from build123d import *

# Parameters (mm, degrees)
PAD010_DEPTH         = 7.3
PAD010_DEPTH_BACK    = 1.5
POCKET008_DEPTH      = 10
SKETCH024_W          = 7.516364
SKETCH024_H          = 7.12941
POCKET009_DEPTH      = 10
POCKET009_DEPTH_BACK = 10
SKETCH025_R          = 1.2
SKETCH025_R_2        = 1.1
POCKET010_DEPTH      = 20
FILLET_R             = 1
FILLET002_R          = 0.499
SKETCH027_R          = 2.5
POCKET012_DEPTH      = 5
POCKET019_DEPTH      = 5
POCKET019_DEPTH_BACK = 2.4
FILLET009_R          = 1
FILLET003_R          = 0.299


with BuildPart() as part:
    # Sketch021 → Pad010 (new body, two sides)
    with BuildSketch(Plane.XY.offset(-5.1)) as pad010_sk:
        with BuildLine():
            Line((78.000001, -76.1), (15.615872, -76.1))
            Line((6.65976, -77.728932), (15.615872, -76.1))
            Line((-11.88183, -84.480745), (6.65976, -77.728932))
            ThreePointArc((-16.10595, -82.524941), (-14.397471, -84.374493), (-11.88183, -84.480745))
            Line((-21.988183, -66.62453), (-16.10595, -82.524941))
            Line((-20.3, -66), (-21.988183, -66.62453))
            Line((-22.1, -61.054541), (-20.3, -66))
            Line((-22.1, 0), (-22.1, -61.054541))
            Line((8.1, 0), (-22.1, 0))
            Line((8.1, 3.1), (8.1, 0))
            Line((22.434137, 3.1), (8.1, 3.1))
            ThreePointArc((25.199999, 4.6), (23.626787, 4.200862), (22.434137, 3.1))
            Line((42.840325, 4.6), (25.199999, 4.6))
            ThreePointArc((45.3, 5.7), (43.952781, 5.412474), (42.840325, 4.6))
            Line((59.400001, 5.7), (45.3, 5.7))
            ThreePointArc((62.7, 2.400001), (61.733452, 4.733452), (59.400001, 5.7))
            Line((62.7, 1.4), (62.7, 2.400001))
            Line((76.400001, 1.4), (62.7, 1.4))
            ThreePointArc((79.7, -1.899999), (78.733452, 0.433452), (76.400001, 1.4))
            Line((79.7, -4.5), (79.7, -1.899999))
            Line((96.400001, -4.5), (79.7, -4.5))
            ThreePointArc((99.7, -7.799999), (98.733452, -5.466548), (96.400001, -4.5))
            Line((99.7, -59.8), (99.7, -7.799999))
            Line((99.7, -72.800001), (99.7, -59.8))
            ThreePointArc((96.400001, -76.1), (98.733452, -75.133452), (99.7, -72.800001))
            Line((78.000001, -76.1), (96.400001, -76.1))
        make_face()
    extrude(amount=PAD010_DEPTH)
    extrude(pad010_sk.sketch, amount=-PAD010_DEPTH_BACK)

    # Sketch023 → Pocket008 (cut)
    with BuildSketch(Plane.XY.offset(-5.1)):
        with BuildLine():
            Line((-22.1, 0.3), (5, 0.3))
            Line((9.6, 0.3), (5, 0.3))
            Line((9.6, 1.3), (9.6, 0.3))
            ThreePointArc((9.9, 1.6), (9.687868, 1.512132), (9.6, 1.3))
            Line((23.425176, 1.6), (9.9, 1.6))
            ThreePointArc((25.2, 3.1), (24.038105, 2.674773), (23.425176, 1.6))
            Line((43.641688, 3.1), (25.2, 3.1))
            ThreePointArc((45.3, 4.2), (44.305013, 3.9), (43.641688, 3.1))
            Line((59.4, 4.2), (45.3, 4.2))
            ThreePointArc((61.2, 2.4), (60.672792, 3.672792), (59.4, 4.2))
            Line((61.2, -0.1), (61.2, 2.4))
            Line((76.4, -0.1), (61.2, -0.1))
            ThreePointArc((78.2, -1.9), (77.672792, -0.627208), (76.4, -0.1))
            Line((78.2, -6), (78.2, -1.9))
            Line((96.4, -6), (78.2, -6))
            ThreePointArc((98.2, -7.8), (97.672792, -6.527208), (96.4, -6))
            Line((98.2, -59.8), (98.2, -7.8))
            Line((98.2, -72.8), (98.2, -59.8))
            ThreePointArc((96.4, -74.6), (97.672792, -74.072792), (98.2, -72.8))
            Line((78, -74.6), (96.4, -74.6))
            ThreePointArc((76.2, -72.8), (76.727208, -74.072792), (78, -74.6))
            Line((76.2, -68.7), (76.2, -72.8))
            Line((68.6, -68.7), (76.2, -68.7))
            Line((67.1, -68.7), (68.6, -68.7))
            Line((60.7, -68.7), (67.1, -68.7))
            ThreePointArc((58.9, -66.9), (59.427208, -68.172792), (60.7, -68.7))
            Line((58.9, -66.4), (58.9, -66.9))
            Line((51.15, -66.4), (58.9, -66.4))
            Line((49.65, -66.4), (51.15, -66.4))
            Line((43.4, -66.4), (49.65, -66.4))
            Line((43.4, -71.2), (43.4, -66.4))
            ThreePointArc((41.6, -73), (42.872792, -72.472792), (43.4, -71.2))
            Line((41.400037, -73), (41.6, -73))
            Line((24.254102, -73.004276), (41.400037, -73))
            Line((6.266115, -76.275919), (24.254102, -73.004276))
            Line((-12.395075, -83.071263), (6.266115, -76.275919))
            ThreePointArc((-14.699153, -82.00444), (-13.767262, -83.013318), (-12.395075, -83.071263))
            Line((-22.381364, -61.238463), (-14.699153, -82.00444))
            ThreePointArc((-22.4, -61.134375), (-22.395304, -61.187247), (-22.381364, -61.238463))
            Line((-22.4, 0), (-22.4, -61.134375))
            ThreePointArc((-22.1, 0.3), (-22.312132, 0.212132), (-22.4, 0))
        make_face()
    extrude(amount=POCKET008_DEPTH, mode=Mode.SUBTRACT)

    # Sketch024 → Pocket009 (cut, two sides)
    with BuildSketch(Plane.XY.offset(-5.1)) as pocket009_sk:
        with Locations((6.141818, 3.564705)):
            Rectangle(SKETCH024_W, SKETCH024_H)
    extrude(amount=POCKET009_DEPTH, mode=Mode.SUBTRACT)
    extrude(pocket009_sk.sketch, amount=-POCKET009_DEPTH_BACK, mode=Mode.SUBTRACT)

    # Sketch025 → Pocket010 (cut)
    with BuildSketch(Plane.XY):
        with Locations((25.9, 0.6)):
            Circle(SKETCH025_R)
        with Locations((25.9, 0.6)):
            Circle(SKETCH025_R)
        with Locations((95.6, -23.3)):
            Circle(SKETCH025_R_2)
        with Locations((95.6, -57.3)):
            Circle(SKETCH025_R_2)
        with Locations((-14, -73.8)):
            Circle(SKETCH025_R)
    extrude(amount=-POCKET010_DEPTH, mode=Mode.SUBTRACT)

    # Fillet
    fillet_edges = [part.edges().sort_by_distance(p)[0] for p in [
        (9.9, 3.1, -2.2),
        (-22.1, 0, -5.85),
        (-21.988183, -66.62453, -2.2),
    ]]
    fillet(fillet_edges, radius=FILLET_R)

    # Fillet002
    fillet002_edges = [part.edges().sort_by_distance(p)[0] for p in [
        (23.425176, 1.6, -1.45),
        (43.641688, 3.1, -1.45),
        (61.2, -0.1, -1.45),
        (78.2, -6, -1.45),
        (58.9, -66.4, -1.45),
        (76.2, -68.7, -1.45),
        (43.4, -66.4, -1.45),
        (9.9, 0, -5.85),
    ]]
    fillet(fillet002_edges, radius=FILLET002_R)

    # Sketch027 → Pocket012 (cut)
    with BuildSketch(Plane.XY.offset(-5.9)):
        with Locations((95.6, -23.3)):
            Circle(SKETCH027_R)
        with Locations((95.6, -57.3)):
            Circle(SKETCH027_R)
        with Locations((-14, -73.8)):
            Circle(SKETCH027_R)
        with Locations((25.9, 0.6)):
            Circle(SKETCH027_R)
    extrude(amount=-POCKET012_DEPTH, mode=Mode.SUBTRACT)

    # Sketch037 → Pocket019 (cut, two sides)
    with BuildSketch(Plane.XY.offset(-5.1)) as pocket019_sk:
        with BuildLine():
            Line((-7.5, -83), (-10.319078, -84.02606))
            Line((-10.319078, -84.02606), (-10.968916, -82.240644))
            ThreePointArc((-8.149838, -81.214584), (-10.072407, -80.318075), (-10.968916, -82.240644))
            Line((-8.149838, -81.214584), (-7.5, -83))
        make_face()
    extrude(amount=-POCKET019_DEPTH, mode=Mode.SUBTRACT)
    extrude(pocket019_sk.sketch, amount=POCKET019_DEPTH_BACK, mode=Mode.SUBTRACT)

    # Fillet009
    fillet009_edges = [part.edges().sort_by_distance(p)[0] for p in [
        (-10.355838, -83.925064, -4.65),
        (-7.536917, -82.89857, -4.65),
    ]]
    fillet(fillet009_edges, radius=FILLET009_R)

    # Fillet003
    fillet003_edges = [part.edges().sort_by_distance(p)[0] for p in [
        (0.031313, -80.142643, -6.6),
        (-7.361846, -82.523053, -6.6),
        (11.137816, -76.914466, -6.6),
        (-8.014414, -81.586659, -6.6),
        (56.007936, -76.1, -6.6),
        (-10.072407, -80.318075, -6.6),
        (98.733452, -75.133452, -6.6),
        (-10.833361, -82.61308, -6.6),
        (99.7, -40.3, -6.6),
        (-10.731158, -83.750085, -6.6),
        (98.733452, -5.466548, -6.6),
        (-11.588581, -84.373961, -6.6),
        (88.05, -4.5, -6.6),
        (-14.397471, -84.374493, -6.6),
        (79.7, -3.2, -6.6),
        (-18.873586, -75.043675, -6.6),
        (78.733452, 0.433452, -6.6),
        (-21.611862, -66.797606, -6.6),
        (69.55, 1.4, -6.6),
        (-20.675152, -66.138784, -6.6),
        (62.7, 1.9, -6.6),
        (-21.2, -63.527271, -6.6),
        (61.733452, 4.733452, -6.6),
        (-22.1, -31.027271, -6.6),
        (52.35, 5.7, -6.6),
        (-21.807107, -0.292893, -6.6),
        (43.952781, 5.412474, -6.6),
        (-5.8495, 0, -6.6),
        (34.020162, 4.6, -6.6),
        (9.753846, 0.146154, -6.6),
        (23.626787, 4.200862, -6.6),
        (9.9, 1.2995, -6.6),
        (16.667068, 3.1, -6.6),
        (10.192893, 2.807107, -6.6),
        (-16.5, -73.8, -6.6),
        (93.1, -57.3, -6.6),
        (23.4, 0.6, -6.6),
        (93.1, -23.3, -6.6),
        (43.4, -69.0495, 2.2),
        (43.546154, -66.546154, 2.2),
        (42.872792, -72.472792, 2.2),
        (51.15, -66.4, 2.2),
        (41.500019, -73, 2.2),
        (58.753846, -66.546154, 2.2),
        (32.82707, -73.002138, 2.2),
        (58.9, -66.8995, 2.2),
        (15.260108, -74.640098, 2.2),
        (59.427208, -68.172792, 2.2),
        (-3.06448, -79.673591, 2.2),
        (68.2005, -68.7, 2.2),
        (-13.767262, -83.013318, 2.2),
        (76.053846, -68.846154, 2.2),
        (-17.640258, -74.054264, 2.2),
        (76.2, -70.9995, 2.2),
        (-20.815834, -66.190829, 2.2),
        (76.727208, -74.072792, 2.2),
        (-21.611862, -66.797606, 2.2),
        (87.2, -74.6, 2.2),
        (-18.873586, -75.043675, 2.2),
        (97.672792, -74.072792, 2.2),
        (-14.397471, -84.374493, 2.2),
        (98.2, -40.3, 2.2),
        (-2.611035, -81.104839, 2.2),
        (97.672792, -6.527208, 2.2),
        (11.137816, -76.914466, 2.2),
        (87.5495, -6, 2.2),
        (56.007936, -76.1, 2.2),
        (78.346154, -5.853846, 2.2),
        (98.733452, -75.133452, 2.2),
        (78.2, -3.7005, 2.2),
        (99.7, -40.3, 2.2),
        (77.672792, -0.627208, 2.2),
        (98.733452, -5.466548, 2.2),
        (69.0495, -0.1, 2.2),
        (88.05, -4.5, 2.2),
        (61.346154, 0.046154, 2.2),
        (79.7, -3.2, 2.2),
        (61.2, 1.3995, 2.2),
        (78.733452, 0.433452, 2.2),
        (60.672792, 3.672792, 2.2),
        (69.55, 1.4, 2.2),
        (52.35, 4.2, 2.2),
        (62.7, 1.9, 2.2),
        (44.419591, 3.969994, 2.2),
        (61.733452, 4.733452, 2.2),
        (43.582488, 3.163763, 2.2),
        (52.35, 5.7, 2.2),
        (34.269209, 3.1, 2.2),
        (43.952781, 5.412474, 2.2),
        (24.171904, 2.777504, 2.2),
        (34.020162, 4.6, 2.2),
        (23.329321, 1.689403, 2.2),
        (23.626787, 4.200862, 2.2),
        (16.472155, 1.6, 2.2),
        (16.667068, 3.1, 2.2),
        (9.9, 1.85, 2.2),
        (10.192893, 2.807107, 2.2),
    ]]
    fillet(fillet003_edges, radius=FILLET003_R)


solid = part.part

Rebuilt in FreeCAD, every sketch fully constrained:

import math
import FreeCAD as App
import Part
import Sketcher
from FreeCAD import Vector
Q = App.Units.Quantity


def edges_at(feature, points):
    """Names of the edges that pass closest to the given points."""
    edges = feature.Shape.Edges
    near = lambda p: min(range(len(edges)), key=lambda i: edges[i].distToShape(Part.Vertex(*p))[0])
    return sorted({f"Edge{near(p) + 1}" for p in points})

doc = App.newDocument("Part")
body = doc.addObject("PartDesign::Body", "Body")

# Sketch on XY plane
sketch1 = body.newObject("Sketcher::SketchObject", "Sketch")
sketch1.AttachmentSupport = (doc.getObject("XY_Plane"), [""])
sketch1.MapMode = "FlatFace"
sketch1.AttachmentOffset = App.Placement(Vector(0, 0, -5.1), App.Rotation())
sketch1.addGeometry(Part.LineSegment(Vector(15.6, -76.1, 0), Vector(96.4, -76.1, 0)), False)
sketch1.addGeometry(Part.ArcOfCircle(Part.Circle(Vector(96.4, -72.8, 0), Vector(0, 0, 1), 3.3), math.radians(-90), math.radians(0)), False)
sketch1.addGeometry(Part.LineSegment(Vector(99.7, -72.8, 0), Vector(99.7, -7.8, 0)), False)
sketch1.addGeometry(Part.ArcOfCircle(Part.Circle(Vector(96.4, -7.8, 0), Vector(0, 0, 1), 3.3), math.radians(0), math.radians(90)), False)
sketch1.addGeometry(Part.LineSegment(Vector(96.4, -4.5, 0), Vector(79.7, -4.5, 0)), False)
sketch1.addGeometry(Part.LineSegment(Vector(79.7, -4.5, 0), Vector(79.7, -1.9, 0)), False)
sketch1.addGeometry(Part.ArcOfCircle(Part.Circle(Vector(76.4, -1.9, 0), Vector(0, 0, 1), 3.3), math.radians(0), math.radians(90)), False)
sketch1.addGeometry(Part.LineSegment(Vector(76.4, 1.4, 0), Vector(62.7, 1.4, 0)), False)
sketch1.addGeometry(Part.LineSegment(Vector(62.7, 1.4, 0), Vector(62.7, 2.4, 0)), False)
sketch1.addGeometry(Part.ArcOfCircle(Part.Circle(Vector(59.4, 2.4, 0), Vector(0, 0, 1), 3.3), math.radians(0), math.radians(90)), False)
sketch1.addGeometry(Part.LineSegment(Vector(59.4, 5.7, 0), Vector(45.3, 5.7, 0)), False)
sketch1.addGeometry(Part.ArcOfCircle(Part.Circle(Vector(45.3, 2.4, 0), Vector(0, 0, 1), 3.3), math.radians(90), math.radians(138)), False)
sketch1.addGeometry(Part.LineSegment(Vector(42.8, 4.6, 0), Vector(25.2, 4.6, 0)), False)
sketch1.addGeometry(Part.ArcOfCircle(Part.Circle(Vector(25.2, 1.3, 0), Vector(0, 0, 1), 3.3), math.radians(90), math.radians(147)), False)
sketch1.addGeometry(Part.LineSegment(Vector(22.4, 3.1, 0), Vector(8.1, 3.1, 0)), False)
sketch1.addGeometry(Part.LineSegment(Vector(8.1, 3.1, 0), Vector(8.1, 0, 0)), False)
sketch1.addGeometry(Part.LineSegment(Vector(8.1, 0, 0), Vector(-22.1, 0, 0)), False)
sketch1.addGeometry(Part.LineSegment(Vector(-22.1, 0, 0), Vector(-22.1, -61.1, 0)), False)
sketch1.addGeometry(Part.LineSegment(Vector(-22.1, -61.1, 0), Vector(-20.3, -66, 0)), False)
sketch1.addGeometry(Part.LineSegment(Vector(-20.3, -66, 0), Vector(-22, -66.6, 0)), False)
sketch1.addGeometry(Part.LineSegment(Vector(-22, -66.6, 0), Vector(-16.1, -82.5, 0)), False)
sketch1.addGeometry(Part.ArcOfCircle(Part.Circle(Vector(-13, -81.4, 0), Vector(0, 0, 1), 3.3), math.radians(-160), math.radians(-70)), False)
sketch1.addGeometry(Part.LineSegment(Vector(-11.9, -84.5, 0), Vector(6.7, -77.7, 0)), False)
sketch1.addGeometry(Part.LineSegment(Vector(6.7, -77.7, 0), Vector(15.6, -76.1, 0)), False)
sketch1.addConstraint(Sketcher.Constraint("Tangent", 0, 2, 1, 1))
sketch1.addConstraint(Sketcher.Constraint("Tangent", 1, 2, 2, 1))
sketch1.addConstraint(Sketcher.Constraint("Tangent", 2, 2, 3, 1))
sketch1.addConstraint(Sketcher.Constraint("Tangent", 3, 2, 4, 1))
sketch1.addConstraint(Sketcher.Constraint("Coincident", 4, 2, 5, 1))
sketch1.addConstraint(Sketcher.Constraint("Tangent", 5, 2, 6, 1))
sketch1.addConstraint(Sketcher.Constraint("Tangent", 6, 2, 7, 1))
sketch1.addConstraint(Sketcher.Constraint("Coincident", 7, 2, 8, 1))
sketch1.addConstraint(Sketcher.Constraint("Tangent", 8, 2, 9, 1))
sketch1.addConstraint(Sketcher.Constraint("Tangent", 9, 2, 10, 1))
sketch1.addConstraint(Sketcher.Constraint("Tangent", 10, 2, 11, 1))
sketch1.addConstraint(Sketcher.Constraint("Coincident", 11, 2, 12, 1))
sketch1.addConstraint(Sketcher.Constraint("Tangent", 12, 2, 13, 1))
sketch1.addConstraint(Sketcher.Constraint("Coincident", 13, 2, 14, 1))
sketch1.addConstraint(Sketcher.Constraint("Coincident", 14, 2, 15, 1))
sketch1.addConstraint(Sketcher.Constraint("Coincident", 15, 2, 16, 1))
sketch1.addConstraint(Sketcher.Constraint("Coincident", 16, 2, 17, 1))
sketch1.addConstraint(Sketcher.Constraint("Coincident", 17, 2, 18, 1))
sketch1.addConstraint(Sketcher.Constraint("Coincident", 18, 2, 19, 1))
sketch1.addConstraint(Sketcher.Constraint("Coincident", 19, 2, 20, 1))
sketch1.addConstraint(Sketcher.Constraint("Coincident", 20, 2, 21, 1))
sketch1.addConstraint(Sketcher.Constraint("Coincident", 21, 2, 22, 1))
sketch1.addConstraint(Sketcher.Constraint("Coincident", 22, 2, 23, 1))
sketch1.addConstraint(Sketcher.Constraint("Coincident", 23, 2, 0, 1))
sketch1.addConstraint(Sketcher.Constraint("Horizontal", 0))
sketch1.addConstraint(Sketcher.Constraint("Vertical", 2))
sketch1.addConstraint(Sketcher.Constraint("Horizontal", 4))
sketch1.addConstraint(Sketcher.Constraint("Vertical", 5))
sketch1.addConstraint(Sketcher.Constraint("Horizontal", 7))
sketch1.addConstraint(Sketcher.Constraint("Vertical", 8))
sketch1.addConstraint(Sketcher.Constraint("Horizontal", 10))
sketch1.addConstraint(Sketcher.Constraint("Horizontal", 12))
sketch1.addConstraint(Sketcher.Constraint("Horizontal", 14))
sketch1.addConstraint(Sketcher.Constraint("Vertical", 15))
sketch1.addConstraint(Sketcher.Constraint("Horizontal", 16))
sketch1.addConstraint(Sketcher.Constraint("Vertical", 17))
sketch1.addConstraint(Sketcher.Constraint("Equal", 1, 3))
sketch1.addConstraint(Sketcher.Constraint("Equal", 3, 6))
sketch1.addConstraint(Sketcher.Constraint("Equal", 6, 9))
sketch1.addConstraint(Sketcher.Constraint("Equal", 9, 11))
sketch1.addConstraint(Sketcher.Constraint("Equal", 9, 13))
sketch1.addConstraint(Sketcher.Constraint("PointOnObject", 15, 2, -1))
sketch1.addConstraint(Sketcher.Constraint("Perpendicular", 19, 20))
sketch1.addConstraint(Sketcher.Constraint("Radius", 1, Q("3.300001 mm")))
sketch1.addConstraint(Sketcher.Constraint("DistanceY", 2, 1, 2, 2, Q("65.000002 mm")))
sketch1.addConstraint(Sketcher.Constraint("DistanceY", 8, 1, 8, 2, Q("1.000001 mm")))
sketch1.addConstraint(Sketcher.Constraint("Angle", 18, Q("-69.999999 deg")))
sketch1.addConstraint(Sketcher.Constraint("DistanceX", 4, 2, 4, 1, Q("16.700001 mm")))
sketch1.addConstraint(Sketcher.Constraint("DistanceX", 7, 2, 7, 1, Q("13.700001 mm")))
sketch1.addConstraint(Sketcher.Constraint("DistanceX", 10, 2, 10, 1, Q("14.100001 mm")))
sketch1.addConstraint(Sketcher.Constraint("DistanceX", 16, 2, 16, 1, Q("30.2 mm")))
sketch1.addConstraint(Sketcher.Constraint("DistanceY", 5, 1, 5, 2, Q("2.600001 mm")))
sketch1.addConstraint(Sketcher.Constraint("DistanceY", 15, 2, 15, 1, Q("3.1 mm")))
sketch1.addConstraint(Sketcher.Constraint("DistanceY", 18, 2, -1, 1, Q("66 mm")))
sketch1.addConstraint(Sketcher.Constraint("Distance", 19, Q("1.8 mm")))
sketch1.addConstraint(Sketcher.Constraint("DistanceX", -1, 1, 1, 3, Q("96.399999 mm")))
sketch1.addConstraint(Sketcher.Constraint("DistanceY", 1, 3, -1, 1, Q("72.799999 mm")))
sketch1.addConstraint(Sketcher.Constraint("DistanceX", -1, 1, 13, 3, Q("25.2 mm")))
sketch1.addConstraint(Sketcher.Constraint("DistanceY", -1, 1, 13, 3, Q("1.300001 mm")))
sketch1.addConstraint(Sketcher.Constraint("DistanceX", -1, 1, 14, 2, Q("8.1 mm")))
sketch1.addConstraint(Sketcher.Constraint("DistanceX", 18, 2, -1, 1, Q("20.3 mm")))
sketch1.addConstraint(Sketcher.Constraint("Radius", 21, Q("3.300067 mm")))
sketch1.addConstraint(Sketcher.Constraint("DistanceX", 0, 1, 0, 2, Q("80.784129 mm")))
sketch1.addConstraint(Sketcher.Constraint("DistanceY", 20, 2, 17, 2, Q("21.4704 mm")))
sketch1.addConstraint(Sketcher.Constraint("DistanceY", 21, 2, 21, 3, Q("3.100901 mm")))
sketch1.addConstraint(Sketcher.Constraint("Distance", 22, Q("19.732652 mm")))
sketch1.addConstraint(Sketcher.Constraint("Distance", 23, Q("9.103041 mm")))
sketch1.addConstraint(Sketcher.Constraint("DistanceY", 19, 2, -1, 1, Q("66.62453 mm")))
sketch1.addConstraint(Sketcher.Constraint("DistanceX", 21, 2, -1, 1, Q("11.88183 mm")))
pad1 = body.newObject("PartDesign::Pad", "Pad")
pad1.Profile = sketch1
pad1.Type = "TwoLengths"
pad1.Length = 7.3
pad1.Length2 = 1.5

# Sketch on XY plane
sketch2 = body.newObject("Sketcher::SketchObject", "Sketch001")
sketch2.AttachmentSupport = (doc.getObject("XY_Plane"), [""])
sketch2.MapMode = "FlatFace"
sketch2.AttachmentOffset = App.Placement(Vector(0, 0, -5.1), App.Rotation())
sketch2.addGeometry(Part.LineSegment(Vector(9.6, 0.3, 0), Vector(-22.1, 0.3, 0)), False)
sketch2.addGeometry(Part.ArcOfCircle(Part.Circle(Vector(-22.1, 0, 0), Vector(0, 0, 1), 0.3), math.radians(90.000022), math.radians(179.999978)), False)
sketch2.addGeometry(Part.LineSegment(Vector(-22.4, 0, 0), Vector(-22.4, -61.134375, 0)), False)
sketch2.addGeometry(Part.ArcOfCircle(Part.Circle(Vector(-22.099989, -61.134373, 0), Vector(0, 0, 1), 0.300011), math.radians(-179.999633), math.radians(-159.698902)), False)
sketch2.addGeometry(Part.LineSegment(Vector(-22.381364, -61.238463, 0), Vector(-14.699153, -82.00444, 0)), False)
sketch2.addGeometry(Part.ArcOfCircle(Part.Circle(Vector(-13.010969, -81.379909, 0), Vector(0, 0, 1), 1.800001), math.radians(-159.698424), math.radians(-69.991278)), False)
sketch2.addGeometry(Part.LineSegment(Vector(-12.395075, -83.071263, 0), Vector(6.266115, -76.275919, 0)), False)
sketch2.addGeometry(Part.LineSegment(Vector(6.266115, -76.275919, 0), Vector(24.254102, -73.004276, 0)), False)
sketch2.addGeometry(Part.LineSegment(Vector(24.254102, -73.004276, 0), Vector(41.400037, -73, 0)), False)
sketch2.addGeometry(Part.LineSegment(Vector(41.400037, -73, 0), Vector(41.6, -73, 0)), False)
sketch2.addGeometry(Part.ArcOfCircle(Part.Circle(Vector(41.599999, -71.199999, 0), Vector(0, 0, 1), 1.800001), math.radians(-89.999978), math.radians(-0.000022)), False)
sketch2.addGeometry(Part.LineSegment(Vector(43.4, -71.2, 0), Vector(43.4, -66.4, 0)), False)
sketch2.addGeometry(Part.LineSegment(Vector(43.4, -66.4, 0), Vector(58.9, -66.4, 0)), False)
sketch2.addGeometry(Part.LineSegment(Vector(58.9, -66.4, 0), Vector(58.9, -66.9, 0)), False)
sketch2.addGeometry(Part.ArcOfCircle(Part.Circle(Vector(60.700001, -66.899999, 0), Vector(0, 0, 1), 1.800001), math.radians(-179.999978), math.radians(-90.000022)), False)
sketch2.addGeometry(Part.LineSegment(Vector(60.7, -68.7, 0), Vector(76.2, -68.7, 0)), False)
sketch2.addGeometry(Part.LineSegment(Vector(76.2, -68.7, 0), Vector(76.2, -72.8, 0)), False)
sketch2.addGeometry(Part.ArcOfCircle(Part.Circle(Vector(78.000001, -72.799999, 0), Vector(0, 0, 1), 1.800001), math.radians(-179.999978), math.radians(-90.000022)), False)
sketch2.addGeometry(Part.LineSegment(Vector(78, -74.6, 0), Vector(96.4, -74.6, 0)), False)
sketch2.addGeometry(Part.ArcOfCircle(Part.Circle(Vector(96.399999, -72.799999, 0), Vector(0, 0, 1), 1.800001), math.radians(-89.999978), math.radians(-0.000022)), False)
sketch2.addGeometry(Part.LineSegment(Vector(98.2, -72.8, 0), Vector(98.2, -7.8, 0)), False)
sketch2.addGeometry(Part.ArcOfCircle(Part.Circle(Vector(96.399999, -7.800001, 0), Vector(0, 0, 1), 1.800001), math.radians(0.000022), math.radians(89.999978)), False)
sketch2.addGeometry(Part.LineSegment(Vector(96.4, -6, 0), Vector(78.2, -6, 0)), False)
sketch2.addGeometry(Part.LineSegment(Vector(78.2, -6, 0), Vector(78.2, -1.9, 0)), False)
sketch2.addGeometry(Part.ArcOfCircle(Part.Circle(Vector(76.399999, -1.900001, 0), Vector(0, 0, 1), 1.800001), math.radians(0.000022), math.radians(89.999978)), False)
sketch2.addGeometry(Part.LineSegment(Vector(76.4, -0.1, 0), Vector(61.2, -0.1, 0)), False)
sketch2.addGeometry(Part.LineSegment(Vector(61.2, -0.1, 0), Vector(61.2, 2.4, 0)), False)
sketch2.addGeometry(Part.ArcOfCircle(Part.Circle(Vector(59.399999, 2.399999, 0), Vector(0, 0, 1), 1.800001), math.radians(0.000022), math.radians(89.999978)), False)
sketch2.addGeometry(Part.LineSegment(Vector(59.4, 4.2, 0), Vector(45.3, 4.2, 0)), False)
sketch2.addGeometry(Part.ArcOfCircle(Part.Circle(Vector(45.3, 2.4, 0), Vector(0, 0, 1), 1.8), math.radians(90.000015), math.radians(157.114617)), False)
sketch2.addGeometry(Part.LineSegment(Vector(43.641688, 3.1, 0), Vector(25.2, 3.1, 0)), False)
sketch2.addGeometry(Part.ArcOfCircle(Part.Circle(Vector(25.199999, 1.300001, 0), Vector(0, 0, 1), 1.799999), math.radians(89.999982), math.radians(170.405947)), False)
sketch2.addGeometry(Part.LineSegment(Vector(23.425176, 1.6, 0), Vector(9.9, 1.6, 0)), False)
sketch2.addGeometry(Part.ArcOfCircle(Part.Circle(Vector(9.9, 1.3, 0), Vector(0, 0, 1), 0.3), math.radians(90.000022), math.radians(179.999978)), False)
sketch2.addGeometry(Part.LineSegment(Vector(9.6, 1.3, 0), Vector(9.6, 0.3, 0)), False)
sketch2.addConstraint(Sketcher.Constraint("Coincident", 0, 2, 1, 1))
sketch2.addConstraint(Sketcher.Constraint("Coincident", 1, 2, 2, 1))
sketch2.addConstraint(Sketcher.Constraint("Coincident", 2, 2, 3, 1))
sketch2.addConstraint(Sketcher.Constraint("Coincident", 3, 2, 4, 1))
sketch2.addConstraint(Sketcher.Constraint("Coincident", 4, 2, 5, 1))
sketch2.addConstraint(Sketcher.Constraint("Coincident", 5, 2, 6, 1))
sketch2.addConstraint(Sketcher.Constraint("Coincident", 6, 2, 7, 1))
sketch2.addConstraint(Sketcher.Constraint("Coincident", 7, 2, 8, 1))
sketch2.addConstraint(Sketcher.Constraint("Coincident", 8, 2, 9, 1))
sketch2.addConstraint(Sketcher.Constraint("Coincident", 9, 2, 10, 1))
sketch2.addConstraint(Sketcher.Constraint("Coincident", 10, 2, 11, 1))
sketch2.addConstraint(Sketcher.Constraint("Coincident", 11, 2, 12, 1))
sketch2.addConstraint(Sketcher.Constraint("Coincident", 12, 2, 13, 1))
sketch2.addConstraint(Sketcher.Constraint("Coincident", 13, 2, 14, 1))
sketch2.addConstraint(Sketcher.Constraint("Coincident", 14, 2, 15, 1))
sketch2.addConstraint(Sketcher.Constraint("Coincident", 15, 2, 16, 1))
sketch2.addConstraint(Sketcher.Constraint("Coincident", 16, 2, 17, 1))
sketch2.addConstraint(Sketcher.Constraint("Coincident", 17, 2, 18, 1))
sketch2.addConstraint(Sketcher.Constraint("Coincident", 18, 2, 19, 1))
sketch2.addConstraint(Sketcher.Constraint("Coincident", 19, 2, 20, 1))
sketch2.addConstraint(Sketcher.Constraint("Coincident", 20, 2, 21, 1))
sketch2.addConstraint(Sketcher.Constraint("Coincident", 21, 2, 22, 1))
sketch2.addConstraint(Sketcher.Constraint("Coincident", 22, 2, 23, 1))
sketch2.addConstraint(Sketcher.Constraint("Coincident", 23, 2, 24, 1))
sketch2.addConstraint(Sketcher.Constraint("Coincident", 24, 2, 25, 1))
sketch2.addConstraint(Sketcher.Constraint("Coincident", 25, 2, 26, 1))
sketch2.addConstraint(Sketcher.Constraint("Coincident", 26, 2, 27, 1))
sketch2.addConstraint(Sketcher.Constraint("Coincident", 27, 2, 28, 1))
sketch2.addConstraint(Sketcher.Constraint("Coincident", 28, 2, 29, 1))
sketch2.addConstraint(Sketcher.Constraint("Coincident", 29, 2, 30, 1))
sketch2.addConstraint(Sketcher.Constraint("Coincident", 30, 2, 31, 1))
sketch2.addConstraint(Sketcher.Constraint("Coincident", 31, 2, 32, 1))
sketch2.addConstraint(Sketcher.Constraint("Coincident", 32, 2, 33, 1))
sketch2.addConstraint(Sketcher.Constraint("Coincident", 33, 2, 34, 1))
sketch2.addConstraint(Sketcher.Constraint("Coincident", 34, 2, 0, 1))
sketch2.addConstraint(Sketcher.Constraint("Horizontal", 0))
sketch2.addConstraint(Sketcher.Constraint("Vertical", 2))
sketch2.addConstraint(Sketcher.Constraint("Horizontal", 9))
sketch2.addConstraint(Sketcher.Constraint("Vertical", 11))
sketch2.addConstraint(Sketcher.Constraint("Horizontal", 12))
sketch2.addConstraint(Sketcher.Constraint("Vertical", 13))
sketch2.addConstraint(Sketcher.Constraint("Horizontal", 15))
sketch2.addConstraint(Sketcher.Constraint("Vertical", 16))
sketch2.addConstraint(Sketcher.Constraint("Horizontal", 18))
sketch2.addConstraint(Sketcher.Constraint("Vertical", 20))
sketch2.addConstraint(Sketcher.Constraint("Horizontal", 22))
sketch2.addConstraint(Sketcher.Constraint("Vertical", 23))
sketch2.addConstraint(Sketcher.Constraint("Horizontal", 25))
sketch2.addConstraint(Sketcher.Constraint("Vertical", 26))
sketch2.addConstraint(Sketcher.Constraint("Horizontal", 28))
sketch2.addConstraint(Sketcher.Constraint("Horizontal", 30))
sketch2.addConstraint(Sketcher.Constraint("Horizontal", 32))
sketch2.addConstraint(Sketcher.Constraint("Vertical", 34))
sketch2.addConstraint(Sketcher.Constraint("PointOnObject", 1, 3, -1))
sketch2.addConstraint(Sketcher.Constraint("PointOnObject", 1, 2, -1))
sketch2.addConstraint(Sketcher.Constraint("Radius", 1, Q("0.3 mm")))
sketch2.addConstraint(Sketcher.Constraint("Radius", 5, Q("1.800001 mm")))
sketch2.addConstraint(Sketcher.Constraint("Radius", 10, Q("1.800001 mm")))
sketch2.addConstraint(Sketcher.Constraint("Radius", 14, Q("1.800001 mm")))
sketch2.addConstraint(Sketcher.Constraint("Radius", 17, Q("1.800001 mm")))
sketch2.addConstraint(Sketcher.Constraint("Radius", 19, Q("1.800001 mm")))
sketch2.addConstraint(Sketcher.Constraint("Radius", 21, Q("1.800001 mm")))
sketch2.addConstraint(Sketcher.Constraint("Radius", 24, Q("1.800001 mm")))
sketch2.addConstraint(Sketcher.Constraint("Radius", 27, Q("1.800001 mm")))
sketch2.addConstraint(Sketcher.Constraint("Radius", 29, Q("1.8 mm")))
sketch2.addConstraint(Sketcher.Constraint("Radius", 31, Q("1.799999 mm")))
sketch2.addConstraint(Sketcher.Constraint("Radius", 33, Q("0.3 mm")))
sketch2.addConstraint(Sketcher.Constraint("DistanceY", 20, 1, 20, 2, Q("65 mm")))
sketch2.addConstraint(Sketcher.Constraint("DistanceY", 34, 2, 34, 1, Q("1 mm")))
sketch2.addConstraint(Sketcher.Constraint("DistanceX", 0, 2, 0, 1, Q("31.7 mm")))
sketch2.addConstraint(Sketcher.Constraint("DistanceX", 12, 1, 12, 2, Q("15.5 mm")))
sketch2.addConstraint(Sketcher.Constraint("DistanceX", 15, 1, 15, 2, Q("15.5 mm")))
sketch2.addConstraint(Sketcher.Constraint("DistanceX", 18, 1, 18, 2, Q("18.4 mm")))
sketch2.addConstraint(Sketcher.Constraint("DistanceX", 22, 2, 22, 1, Q("18.2 mm")))
sketch2.addConstraint(Sketcher.Constraint("DistanceX", 25, 2, 25, 1, Q("15.2 mm")))
sketch2.addConstraint(Sketcher.Constraint("DistanceX", 28, 2, 28, 1, Q("14.1 mm")))
sketch2.addConstraint(Sketcher.Constraint("DistanceY", 11, 1, 11, 2, Q("4.8 mm")))
sketch2.addConstraint(Sketcher.Constraint("DistanceY", 13, 2, 13, 1, Q("0.5 mm")))
sketch2.addConstraint(Sketcher.Constraint("DistanceY", 16, 2, 16, 1, Q("4.1 mm")))
sketch2.addConstraint(Sketcher.Constraint("DistanceY", 23, 1, 23, 2, Q("4.1 mm")))
sketch2.addConstraint(Sketcher.Constraint("DistanceY", 26, 1, 26, 2, Q("2.5 mm")))
sketch2.addConstraint(Sketcher.Constraint("DistanceX", -1, 1, 17, 3, Q("78.000001 mm")))
sketch2.addConstraint(Sketcher.Constraint("DistanceY", 8, 2, -1, 1, Q("73 mm")))
sketch2.addConstraint(Sketcher.Constraint("DistanceX", -1, 1, 17, 2, Q("78 mm")))
sketch2.addConstraint(Sketcher.Constraint("DistanceY", 21, 2, -1, 1, Q("6 mm")))
sketch2.addConstraint(Sketcher.Constraint("DistanceY", 19, 3, 21, 3, Q("64.999999 mm")))
sketch2.addConstraint(Sketcher.Constraint("DistanceX", 24, 3, 21, 3, Q("20 mm")))
sketch2.addConstraint(Sketcher.Constraint("DistanceY", 14, 3, 24, 3, Q("64.999999 mm")))
sketch2.addConstraint(Sketcher.Constraint("DistanceX", 27, 3, 24, 3, Q("17 mm")))
sketch2.addConstraint(Sketcher.Constraint("DistanceX", 1, 3, 33, 3, Q("32 mm")))
sketch2.addConstraint(Sketcher.Constraint("DistanceY", 0, 2, 33, 3, Q("1 mm")))
sketch2.addConstraint(Sketcher.Constraint("DistanceY", 0, 2, 31, 3, Q("1.000001 mm")))
sketch2.addConstraint(Sketcher.Constraint("DistanceX", 16, 2, 19, 2, Q("22 mm")))
sketch2.addConstraint(Sketcher.Constraint("DistanceX", 27, 2, 24, 2, Q("17 mm")))
sketch2.addConstraint(Sketcher.Constraint("DistanceX", 0, 2, 32, 2, Q("32 mm")))
sketch2.addConstraint(Sketcher.Constraint("DistanceX", 1, 3, -1, 1, Q("22.1 mm")))
sketch2.addConstraint(Sketcher.Constraint("DistanceX", -1, 1, 10, 3, Q("41.599999 mm")))
sketch2.addConstraint(Sketcher.Constraint("DistanceY", 14, 3, -1, 1, Q("66.899999 mm")))
sketch2.addConstraint(Sketcher.Constraint("DistanceY", -1, 1, 27, 3, Q("2.399999 mm")))
sketch2.addConstraint(Sketcher.Constraint("DistanceX", -1, 1, 29, 3, Q("45.3 mm")))
sketch2.addConstraint(Sketcher.Constraint("DistanceX", -1, 1, 31, 3, Q("25.199999 mm")))
sketch2.addConstraint(Sketcher.Constraint("DistanceX", -1, 1, 9, 2, Q("41.6 mm")))
sketch2.addConstraint(Sketcher.Constraint("DistanceY", 10, 2, -1, 1, Q("71.2 mm")))
sketch2.addConstraint(Sketcher.Constraint("DistanceY", 19, 2, -1, 1, Q("72.8 mm")))
sketch2.addConstraint(Sketcher.Constraint("DistanceX", -1, 1, 30, 2, Q("25.2 mm")))
sketch2.addConstraint(Sketcher.Constraint("Radius", 3, Q("0.300011 mm")))
sketch2.addConstraint(Sketcher.Constraint("DistanceX", -1, 1, 7, 2, Q("24.254102 mm")))
sketch2.addConstraint(Sketcher.Constraint("DistanceY", 5, 2, 3, 2, Q("21.8328 mm")))
sketch2.addConstraint(Sketcher.Constraint("Distance", 7, Q("18.283088 mm")))
sketch2.addConstraint(Sketcher.Constraint("DistanceX", 9, 1, 9, 2, Q("0.199963 mm")))
sketch2.addConstraint(Sketcher.Constraint("DistanceY", 2, 2, 2, 1, Q("61.134375 mm")))
sketch2.addConstraint(Sketcher.Constraint("DistanceX", 5, 3, -1, 1, Q("13.010969 mm")))
sketch2.addConstraint(Sketcher.Constraint("DistanceY", 5, 3, -1, 1, Q("81.379909 mm")))
sketch2.addConstraint(Sketcher.Constraint("DistanceY", 4, 2, -1, 1, Q("82.00444 mm")))
sketch2.addConstraint(Sketcher.Constraint("DistanceY", 6, 2, -1, 1, Q("76.275919 mm")))
sketch2.addConstraint(Sketcher.Constraint("DistanceY", 3, 2, 3, 3, Q("0.10409 mm")))
sketch2.addConstraint(Sketcher.Constraint("DistanceX", 3, 2, 5, 2, Q("9.986289 mm")))
sketch2.addConstraint(Sketcher.Constraint("DistanceX", 5, 2, 6, 2, Q("18.66119 mm")))
pocket1 = body.newObject("PartDesign::Pocket", "Pocket")
pocket1.Profile = sketch2
pocket1.Length = 10
pocket1.Reversed = True

# Sketch on XY plane
sketch3 = body.newObject("Sketcher::SketchObject", "Sketch002")
sketch3.AttachmentSupport = (doc.getObject("XY_Plane"), [""])
sketch3.MapMode = "FlatFace"
sketch3.AttachmentOffset = App.Placement(Vector(0, 0, -5.1), App.Rotation())
sketch3.addGeometry(Part.LineSegment(Vector(2, 7, 0), Vector(2, 0, 0)), False)
sketch3.addGeometry(Part.LineSegment(Vector(2, 0, 0), Vector(10, 0, 0)), False)
sketch3.addGeometry(Part.LineSegment(Vector(10, 0, 0), Vector(10, 7, 0)), False)
sketch3.addGeometry(Part.LineSegment(Vector(10, 7, 0), Vector(2, 7, 0)), False)
sketch3.addConstraint(Sketcher.Constraint("Coincident", 0, 2, 1, 1))
sketch3.addConstraint(Sketcher.Constraint("Coincident", 1, 2, 2, 1))
sketch3.addConstraint(Sketcher.Constraint("Coincident", 2, 2, 3, 1))
sketch3.addConstraint(Sketcher.Constraint("Coincident", 3, 2, 0, 1))
sketch3.addConstraint(Sketcher.Constraint("Vertical", 0))
sketch3.addConstraint(Sketcher.Constraint("Horizontal", 1))
sketch3.addConstraint(Sketcher.Constraint("Vertical", 2))
sketch3.addConstraint(Sketcher.Constraint("Horizontal", 3))
sketch3.addConstraint(Sketcher.Constraint("PointOnObject", 0, 2, -1))
sketch3.addConstraint(Sketcher.Constraint("DistanceX", -1, 1, 1, 2, Q("9.9 mm")))
sketch3.addConstraint(Sketcher.Constraint("DistanceY", 0, 2, 0, 1, Q("7.12941 mm")))
sketch3.addConstraint(Sketcher.Constraint("DistanceX", 1, 1, 1, 2, Q("7.516364 mm")))
pocket2 = body.newObject("PartDesign::Pocket", "Pocket001")
pocket2.Profile = sketch3
pocket2.Type = "ThroughAll"
pocket2.Midplane = True

# Sketch on XY plane
sketch4 = body.newObject("Sketcher::SketchObject", "Sketch003")
sketch4.AttachmentSupport = (doc.getObject("XY_Plane"), [""])
sketch4.MapMode = "FlatFace"
sketch4.addGeometry(Part.Circle(Vector(25.9, 0.6, 0), Vector(0, 0, 1), 1.2), False)
sketch4.addGeometry(Part.Circle(Vector(95.6, -23.3, 0), Vector(0, 0, 1), 1.1), False)
sketch4.addGeometry(Part.Circle(Vector(95.6, -57.3, 0), Vector(0, 0, 1), 1.1), False)
sketch4.addGeometry(Part.Circle(Vector(-14, -73.8, 0), Vector(0, 0, 1), 1.2), False)
sketch4.addConstraint(Sketcher.Constraint("Equal", 1, 2))
sketch4.addConstraint(Sketcher.Constraint("Equal", 0, 3))
sketch4.addConstraint(Sketcher.Constraint("Vertical", 1, 3, 2, 3))
sketch4.addConstraint(Sketcher.Constraint("Diameter", 0, Q("2.4 mm")))
sketch4.addConstraint(Sketcher.Constraint("Diameter", 1, Q("2.2 mm")))
sketch4.addConstraint(Sketcher.Constraint("DistanceX", 3, 3, -1, 1, Q("14 mm")))
sketch4.addConstraint(Sketcher.Constraint("DistanceY", 2, 3, 1, 3, Q("34 mm")))
sketch4.addConstraint(Sketcher.Constraint("DistanceX", -1, 1, 0, 3, Q("25.9 mm")))
sketch4.addConstraint(Sketcher.Constraint("DistanceY", -1, 1, 0, 3, Q("0.6 mm")))
sketch4.addConstraint(Sketcher.Constraint("DistanceX", -1, 1, 1, 3, Q("95.6 mm")))
sketch4.addConstraint(Sketcher.Constraint("DistanceY", 1, 3, -1, 1, Q("23.3 mm")))
sketch4.addConstraint(Sketcher.Constraint("DistanceY", 3, 3, -1, 1, Q("73.8 mm")))
pocket3 = body.newObject("PartDesign::Pocket", "Pocket002")
pocket3.Profile = sketch4
pocket3.Length = 20
doc.recompute()

fillet = body.newObject("PartDesign::Fillet", "Fillet")
fillet.Base = (pocket3, edges_at(pocket3, [(9.9, 3.1, -2.2), (-22.1, 0, -5.85), (-21.988, -66.625, -2.2)]))
fillet.Radius = 1
doc.recompute()

fillet2 = body.newObject("PartDesign::Fillet", "Fillet001")
fillet2.Base = (fillet, edges_at(fillet, [
    (23.425, 1.6, -1.45),
    (43.642, 3.1, -1.45),
    (61.2, -0.1, -1.45),
    (78.2, -6, -1.45),
    (58.9, -66.4, -1.45),
    (76.2, -68.7, -1.45),
    (43.4, -66.4, -1.45),
    (9.9, 0, -5.85),
]))
fillet2.Radius = 0.499

# Sketch on XY plane
sketch5 = body.newObject("Sketcher::SketchObject", "Sketch004")
sketch5.AttachmentSupport = (doc.getObject("XY_Plane"), [""])
sketch5.MapMode = "FlatFace"
sketch5.AttachmentOffset = App.Placement(Vector(0, 0, -5.9), App.Rotation())
sketch5.addGeometry(Part.Circle(Vector(95.6, -23.3, 0), Vector(0, 0, 1), 2.5), False)
sketch5.addGeometry(Part.Circle(Vector(95.6, -57.3, 0), Vector(0, 0, 1), 2.5), False)
sketch5.addGeometry(Part.Circle(Vector(-14, -73.8, 0), Vector(0, 0, 1), 2.5), False)
sketch5.addGeometry(Part.Circle(Vector(25.9, 0.6, 0), Vector(0, 0, 1), 2.5), False)
sketch5.addConstraint(Sketcher.Constraint("Equal", 0, 1))
sketch5.addConstraint(Sketcher.Constraint("Equal", 1, 2))
sketch5.addConstraint(Sketcher.Constraint("Equal", 2, 3))
sketch5.addConstraint(Sketcher.Constraint("Vertical", 0, 3, 1, 3))
sketch5.addConstraint(Sketcher.Constraint("Diameter", 0, Q("5 mm")))
sketch5.addConstraint(Sketcher.Constraint("DistanceX", 2, 3, -1, 1, Q("14 mm")))
sketch5.addConstraint(Sketcher.Constraint("DistanceY", 1, 3, 0, 3, Q("34 mm")))
sketch5.addConstraint(Sketcher.Constraint("DistanceX", -1, 1, 0, 3, Q("95.6 mm")))
sketch5.addConstraint(Sketcher.Constraint("DistanceY", 0, 3, -1, 1, Q("23.3 mm")))
sketch5.addConstraint(Sketcher.Constraint("DistanceY", 2, 3, -1, 1, Q("73.8 mm")))
sketch5.addConstraint(Sketcher.Constraint("DistanceX", -1, 1, 3, 3, Q("25.9 mm")))
sketch5.addConstraint(Sketcher.Constraint("DistanceY", -1, 1, 3, 3, Q("0.6 mm")))
pocket4 = body.newObject("PartDesign::Pocket", "Pocket003")
pocket4.Profile = sketch5
pocket4.Length = 5

# Sketch on XY plane
sketch6 = body.newObject("Sketcher::SketchObject", "Sketch005")
sketch6.AttachmentSupport = (doc.getObject("XY_Plane"), [""])
sketch6.MapMode = "FlatFace"
sketch6.AttachmentOffset = App.Placement(Vector(0, 0, -5.1), App.Rotation())
sketch6.addGeometry(Part.LineSegment(Vector(-10.3, -84, 0), Vector(-7.5, -83, 0)), False)
sketch6.addGeometry(Part.LineSegment(Vector(-7.5, -83, 0), Vector(-8.1, -81.2, 0)), False)
sketch6.addGeometry(Part.ArcOfCircle(Part.Circle(Vector(-9.6, -81.7, 0), Vector(0, 0, 1), 1.5), math.radians(20), math.radians(200)), False)
sketch6.addGeometry(Part.LineSegment(Vector(-11, -82.2, 0), Vector(-10.3, -84, 0)), False)
sketch6.addConstraint(Sketcher.Constraint("Coincident", 0, 2, 1, 1))
sketch6.addConstraint(Sketcher.Constraint("Tangent", 1, 2, 2, 1))
sketch6.addConstraint(Sketcher.Constraint("Tangent", 2, 2, 3, 1))
sketch6.addConstraint(Sketcher.Constraint("Coincident", 3, 2, 0, 1))
sketch6.addConstraint(Sketcher.Constraint("Perpendicular", 0, 1))
sketch6.addConstraint(Sketcher.Constraint("Parallel", 1, 3))
sketch6.addConstraint(Sketcher.Constraint("Radius", 2, Q("1.5 mm")))
sketch6.addConstraint(Sketcher.Constraint("Angle", 0, Q("19.999991 deg")))
sketch6.addConstraint(Sketcher.Constraint("DistanceY", 0, 2, -1, 1, Q("83 mm")))
sketch6.addConstraint(Sketcher.Constraint("Distance", 1, Q("1.9 mm")))
sketch6.addConstraint(Sketcher.Constraint("DistanceX", 0, 2, -1, 1, Q("7.5 mm")))
pocket5 = body.newObject("PartDesign::Pocket", "Pocket004")
pocket5.Profile = sketch6
pocket5.Type = "TwoLengths"
pocket5.Length = 5
pocket5.Length2 = 2.4
doc.recompute()

fillet3 = body.newObject("PartDesign::Fillet", "Fillet002")
fillet3.Base = (pocket5, edges_at(pocket5, [(-10.356, -83.925, -4.65), (-7.537, -82.899, -4.65)]))
fillet3.Radius = 1
doc.recompute()

fillet4 = body.newObject("PartDesign::Fillet", "Fillet003")
fillet4.Base = (fillet3, edges_at(fillet3, [
    (0.031, -80.143, -6.6),
    (-7.362, -82.523, -6.6),
    (11.138, -76.914, -6.6),
    (-8.014, -81.587, -6.6),
    (56.008, -76.1, -6.6),
    (-10.072, -80.318, -6.6),
    (98.733, -75.133, -6.6),
    (-10.833, -82.613, -6.6),
    (99.7, -40.3, -6.6),
    (-10.731, -83.75, -6.6),
    (98.733, -5.467, -6.6),
    (-11.589, -84.374, -6.6),
    (88.05, -4.5, -6.6),
    (-14.397, -84.374, -6.6),
    (79.7, -3.2, -6.6),
    (-18.874, -75.044, -6.6),
    (78.733, 0.433, -6.6),
    (-21.612, -66.798, -6.6),
    (69.55, 1.4, -6.6),
    (-20.675, -66.139, -6.6),
    (62.7, 1.9, -6.6),
    (-21.2, -63.527, -6.6),
    (61.733, 4.733, -6.6),
    (-22.1, -31.027, -6.6),
    (52.35, 5.7, -6.6),
    (-21.807, -0.293, -6.6),
    (43.953, 5.412, -6.6),
    (-5.849, 0, -6.6),
    (34.02, 4.6, -6.6),
    (9.754, 0.146, -6.6),
    (23.627, 4.201, -6.6),
    (9.9, 1.3, -6.6),
    (16.667, 3.1, -6.6),
    (10.193, 2.807, -6.6),
    (-16.5, -73.8, -6.6),
    (93.1, -57.3, -6.6),
    (23.4, 0.6, -6.6),
    (93.1, -23.3, -6.6),
    (43.4, -69.049, 2.2),
    (43.546, -66.546, 2.2),
    (42.873, -72.473, 2.2),
    (51.15, -66.4, 2.2),
    (41.5, -73, 2.2),
    (58.754, -66.546, 2.2),
    (32.827, -73.002, 2.2),
    (58.9, -66.9, 2.2),
    (15.26, -74.64, 2.2),
    (59.427, -68.173, 2.2),
    (-3.064, -79.674, 2.2),
    (68.201, -68.7, 2.2),
    (-13.767, -83.013, 2.2),
    (76.054, -68.846, 2.2),
    (-17.64, -74.054, 2.2),
    (76.2, -70.999, 2.2),
    (-20.816, -66.191, 2.2),
    (76.727, -74.073, 2.2),
    (-21.612, -66.798, 2.2),
    (87.2, -74.6, 2.2),
    (-18.874, -75.044, 2.2),
    (97.673, -74.073, 2.2),
    (-14.397, -84.374, 2.2),
    (98.2, -40.3, 2.2),
    (-2.611, -81.105, 2.2),
    (97.673, -6.527, 2.2),
    (11.138, -76.914, 2.2),
    (87.549, -6, 2.2),
    (56.008, -76.1, 2.2),
    (78.346, -5.854, 2.2),
    (98.733, -75.133, 2.2),
    (78.2, -3.7, 2.2),
    (99.7, -40.3, 2.2),
    (77.673, -0.627, 2.2),
    (98.733, -5.467, 2.2),
    (69.049, -0.1, 2.2),
    (88.05, -4.5, 2.2),
    (61.346, 0.046, 2.2),
    (79.7, -3.2, 2.2),
    (61.2, 1.399, 2.2),
    (78.733, 0.433, 2.2),
    (60.673, 3.673, 2.2),
    (69.55, 1.4, 2.2),
    (52.35, 4.2, 2.2),
    (62.7, 1.9, 2.2),
    (44.42, 3.97, 2.2),
    (61.733, 4.733, 2.2),
    (43.582, 3.164, 2.2),
    (52.35, 5.7, 2.2),
    (34.269, 3.1, 2.2),
    (43.953, 5.412, 2.2),
    (24.172, 2.778, 2.2),
    (34.02, 4.6, 2.2),
    (23.329, 1.689, 2.2),
    (23.627, 4.201, 2.2),
    (16.472, 1.6, 2.2),
    (16.667, 3.1, 2.2),
    (9.9, 1.85, 2.2),
    (10.193, 2.807, 2.2),
]))
fillet4.Radius = 0.299

doc.recompute()
